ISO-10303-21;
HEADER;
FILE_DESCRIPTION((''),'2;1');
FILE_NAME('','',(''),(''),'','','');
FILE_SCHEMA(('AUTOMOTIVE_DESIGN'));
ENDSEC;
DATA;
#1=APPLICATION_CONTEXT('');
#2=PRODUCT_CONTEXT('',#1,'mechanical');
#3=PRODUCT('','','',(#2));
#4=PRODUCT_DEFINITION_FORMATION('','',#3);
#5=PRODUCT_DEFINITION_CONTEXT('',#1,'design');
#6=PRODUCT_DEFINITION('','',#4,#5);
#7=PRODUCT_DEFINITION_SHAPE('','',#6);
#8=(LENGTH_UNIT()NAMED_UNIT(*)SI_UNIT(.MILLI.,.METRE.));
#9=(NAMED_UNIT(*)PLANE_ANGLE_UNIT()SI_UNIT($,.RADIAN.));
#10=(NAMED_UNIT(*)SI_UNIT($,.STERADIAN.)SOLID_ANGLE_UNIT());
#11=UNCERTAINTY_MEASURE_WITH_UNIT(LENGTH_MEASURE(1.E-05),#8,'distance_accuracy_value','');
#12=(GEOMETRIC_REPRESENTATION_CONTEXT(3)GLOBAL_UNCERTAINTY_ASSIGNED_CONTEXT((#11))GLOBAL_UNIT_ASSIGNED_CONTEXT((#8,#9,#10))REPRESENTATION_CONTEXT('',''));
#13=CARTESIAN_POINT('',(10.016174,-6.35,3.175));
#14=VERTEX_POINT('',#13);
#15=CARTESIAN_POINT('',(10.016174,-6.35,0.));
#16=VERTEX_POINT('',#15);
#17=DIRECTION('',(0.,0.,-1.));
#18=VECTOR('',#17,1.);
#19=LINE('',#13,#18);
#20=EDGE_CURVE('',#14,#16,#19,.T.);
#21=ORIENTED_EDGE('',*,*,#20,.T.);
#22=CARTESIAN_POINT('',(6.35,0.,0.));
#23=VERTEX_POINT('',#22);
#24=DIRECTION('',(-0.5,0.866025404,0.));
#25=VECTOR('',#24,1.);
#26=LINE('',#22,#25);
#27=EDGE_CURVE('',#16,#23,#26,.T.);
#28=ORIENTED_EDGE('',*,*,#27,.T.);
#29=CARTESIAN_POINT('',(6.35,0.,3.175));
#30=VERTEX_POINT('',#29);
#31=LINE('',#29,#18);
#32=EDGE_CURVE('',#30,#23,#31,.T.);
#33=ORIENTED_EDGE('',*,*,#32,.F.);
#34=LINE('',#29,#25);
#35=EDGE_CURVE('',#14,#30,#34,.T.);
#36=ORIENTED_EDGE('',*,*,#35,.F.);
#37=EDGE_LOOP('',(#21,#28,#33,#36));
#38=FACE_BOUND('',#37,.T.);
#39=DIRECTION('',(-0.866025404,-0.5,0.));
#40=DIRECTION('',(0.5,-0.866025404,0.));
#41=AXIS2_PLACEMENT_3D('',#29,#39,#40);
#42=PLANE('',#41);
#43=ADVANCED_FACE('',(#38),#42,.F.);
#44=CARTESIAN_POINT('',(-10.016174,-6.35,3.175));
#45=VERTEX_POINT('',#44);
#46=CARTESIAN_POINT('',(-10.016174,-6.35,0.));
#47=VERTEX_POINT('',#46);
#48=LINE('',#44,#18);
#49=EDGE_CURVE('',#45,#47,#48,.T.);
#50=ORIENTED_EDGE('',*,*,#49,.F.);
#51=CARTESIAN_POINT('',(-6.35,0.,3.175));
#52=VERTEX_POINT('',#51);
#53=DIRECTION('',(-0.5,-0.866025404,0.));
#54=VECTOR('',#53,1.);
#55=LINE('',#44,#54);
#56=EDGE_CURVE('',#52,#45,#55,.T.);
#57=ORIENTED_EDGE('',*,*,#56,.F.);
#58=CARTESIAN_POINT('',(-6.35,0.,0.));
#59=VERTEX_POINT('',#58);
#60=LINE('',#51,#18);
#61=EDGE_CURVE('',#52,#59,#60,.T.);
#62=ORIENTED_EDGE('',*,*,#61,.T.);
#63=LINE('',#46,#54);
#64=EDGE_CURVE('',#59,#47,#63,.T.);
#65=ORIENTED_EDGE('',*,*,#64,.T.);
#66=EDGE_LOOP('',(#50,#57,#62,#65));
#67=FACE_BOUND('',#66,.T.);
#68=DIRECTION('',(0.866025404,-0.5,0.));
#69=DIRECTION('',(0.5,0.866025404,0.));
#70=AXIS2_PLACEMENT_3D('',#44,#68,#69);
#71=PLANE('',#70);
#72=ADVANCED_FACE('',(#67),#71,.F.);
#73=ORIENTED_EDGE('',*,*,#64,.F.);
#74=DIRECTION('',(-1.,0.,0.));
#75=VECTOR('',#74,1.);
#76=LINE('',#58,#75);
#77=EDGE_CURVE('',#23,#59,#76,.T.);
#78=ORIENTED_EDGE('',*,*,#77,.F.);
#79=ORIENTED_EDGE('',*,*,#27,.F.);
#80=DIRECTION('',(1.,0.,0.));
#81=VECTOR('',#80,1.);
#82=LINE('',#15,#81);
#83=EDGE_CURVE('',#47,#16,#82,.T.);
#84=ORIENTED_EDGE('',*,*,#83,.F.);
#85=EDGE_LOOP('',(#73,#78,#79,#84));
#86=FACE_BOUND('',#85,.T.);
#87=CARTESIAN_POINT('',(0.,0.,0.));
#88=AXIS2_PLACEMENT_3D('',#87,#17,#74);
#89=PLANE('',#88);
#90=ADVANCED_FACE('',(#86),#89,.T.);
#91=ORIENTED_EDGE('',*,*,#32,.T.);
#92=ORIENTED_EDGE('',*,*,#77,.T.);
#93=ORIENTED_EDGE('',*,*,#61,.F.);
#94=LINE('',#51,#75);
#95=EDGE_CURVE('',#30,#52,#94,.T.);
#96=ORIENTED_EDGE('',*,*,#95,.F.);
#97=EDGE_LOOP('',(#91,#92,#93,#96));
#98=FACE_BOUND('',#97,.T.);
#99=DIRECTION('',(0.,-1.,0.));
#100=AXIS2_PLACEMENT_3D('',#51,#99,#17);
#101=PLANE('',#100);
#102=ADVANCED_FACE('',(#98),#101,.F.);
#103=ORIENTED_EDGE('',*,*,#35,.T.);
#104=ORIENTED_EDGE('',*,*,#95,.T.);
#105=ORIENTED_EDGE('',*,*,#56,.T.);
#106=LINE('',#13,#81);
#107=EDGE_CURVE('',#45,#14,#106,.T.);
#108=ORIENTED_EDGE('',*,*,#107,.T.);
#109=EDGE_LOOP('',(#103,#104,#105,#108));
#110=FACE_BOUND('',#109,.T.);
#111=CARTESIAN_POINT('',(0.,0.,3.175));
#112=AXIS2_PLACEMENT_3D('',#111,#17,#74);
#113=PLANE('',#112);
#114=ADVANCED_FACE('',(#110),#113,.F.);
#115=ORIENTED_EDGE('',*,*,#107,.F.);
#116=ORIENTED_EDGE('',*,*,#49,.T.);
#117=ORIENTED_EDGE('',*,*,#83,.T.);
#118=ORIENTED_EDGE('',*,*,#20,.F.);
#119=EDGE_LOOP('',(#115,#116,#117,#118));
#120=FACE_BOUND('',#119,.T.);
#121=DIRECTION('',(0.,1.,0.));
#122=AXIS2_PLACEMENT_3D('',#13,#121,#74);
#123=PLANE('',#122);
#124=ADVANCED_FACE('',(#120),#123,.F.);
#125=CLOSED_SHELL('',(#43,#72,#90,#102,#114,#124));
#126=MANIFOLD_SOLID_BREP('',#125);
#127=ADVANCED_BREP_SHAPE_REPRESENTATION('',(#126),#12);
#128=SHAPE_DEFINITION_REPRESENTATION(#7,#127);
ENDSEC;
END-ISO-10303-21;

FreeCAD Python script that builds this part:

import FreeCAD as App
import Part
import Sketcher
from FreeCAD import Vector
Q = App.Units.Quantity


def add_polygon(sketch, points):
    """Adds a closed chain of lines whose ends are joined by coincident constraints."""
    first, n = sketch.GeometryCount, len(points)
    for a, b in zip(points, points[1:] + points[:1]):
        sketch.addGeometry(Part.LineSegment(App.Vector(*a, 0), App.Vector(*b, 0)), False)
    for i in range(n):
        sketch.addConstraint(Sketcher.Constraint("Coincident", first + i, 2, first + (i + 1) % n, 1))

doc = App.newDocument("Part")
body = doc.addObject("PartDesign::Body", "Body")

sketch1 = body.newObject("Sketcher::SketchObject", "Sketch")
sketch1.AttachmentSupport = (doc.getObject("XY_Plane"), [""])
sketch1.MapMode = "FlatFace"
add_polygon(sketch1, [(6, 0), (-6, 0), (-10, -6), (10, -6)])
sketch1.addConstraint([
    Sketcher.Constraint("Horizontal", 0),
    Sketcher.Constraint("Horizontal", 2),
    Sketcher.Constraint("Symmetric", 0, 2, 3, 2, -1, 1),
    Sketcher.Constraint("Equal", 1, 3),
    Sketcher.Constraint("DistanceX", 0, 2, 0, 1, Q("0.5 in")),
    Sketcher.Constraint("Angle", 1, Q("-120 deg")),
    Sketcher.Constraint("DistanceY", 1, 2, -1, 1, Q("0.25 in")),
])
pad1 = body.newObject("PartDesign::Pad", "Pad")
pad1.Profile = sketch1
pad1.Length = Q("0.125 in")

doc.recompute()
